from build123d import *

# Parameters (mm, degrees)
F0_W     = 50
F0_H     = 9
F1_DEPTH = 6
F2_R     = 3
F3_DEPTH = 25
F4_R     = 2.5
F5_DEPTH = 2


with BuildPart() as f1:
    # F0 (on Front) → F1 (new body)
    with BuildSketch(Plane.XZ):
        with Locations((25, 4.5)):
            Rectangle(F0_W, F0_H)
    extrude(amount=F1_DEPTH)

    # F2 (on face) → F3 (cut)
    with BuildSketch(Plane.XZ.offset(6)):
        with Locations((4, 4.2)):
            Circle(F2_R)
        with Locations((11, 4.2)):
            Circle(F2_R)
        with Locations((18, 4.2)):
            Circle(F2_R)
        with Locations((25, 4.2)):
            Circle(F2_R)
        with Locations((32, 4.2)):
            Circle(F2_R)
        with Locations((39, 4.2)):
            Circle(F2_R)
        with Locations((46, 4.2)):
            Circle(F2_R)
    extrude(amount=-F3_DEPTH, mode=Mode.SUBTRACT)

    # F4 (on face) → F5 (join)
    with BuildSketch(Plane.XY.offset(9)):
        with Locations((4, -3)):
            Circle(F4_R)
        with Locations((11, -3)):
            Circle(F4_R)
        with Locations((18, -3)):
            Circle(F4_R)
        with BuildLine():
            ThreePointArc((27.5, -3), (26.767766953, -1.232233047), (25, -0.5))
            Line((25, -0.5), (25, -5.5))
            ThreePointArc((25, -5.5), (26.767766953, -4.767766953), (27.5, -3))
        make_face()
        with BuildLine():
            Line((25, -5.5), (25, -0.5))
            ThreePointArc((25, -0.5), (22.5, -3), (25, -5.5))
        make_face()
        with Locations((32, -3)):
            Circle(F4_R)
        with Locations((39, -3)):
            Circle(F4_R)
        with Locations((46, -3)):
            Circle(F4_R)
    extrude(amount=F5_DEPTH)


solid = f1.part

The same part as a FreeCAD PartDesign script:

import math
import FreeCAD as App
import Part
import Sketcher

V = App.Vector


def add_polygon(sketch, points):
    """Adds a closed chain of lines whose ends are joined by coincident constraints."""
    first, n = sketch.GeometryCount, len(points)
    for a, b in zip(points, points[1:] + points[:1]):
        sketch.addGeometry(Part.LineSegment(App.Vector(*a, 0), App.Vector(*b, 0)), False)
    for i in range(n):
        sketch.addConstraint(Sketcher.Constraint("Coincident", first + i, 2, first + (i + 1) % n, 1))

doc = App.newDocument("Part")
body = doc.addObject("PartDesign::Body", "Body")

# Sketch on XZ plane
sketch1 = body.newObject("Sketcher::SketchObject", "Sketch")
sketch1.AttachmentSupport = (doc.getObject("XZ_Plane"), [""])
sketch1.MapMode = "FlatFace"
add_polygon(sketch1, [(0, 9), (0, 0), (50, 0), (50, 9)])  # lines 0-3
sketch1.addConstraint([
    Sketcher.Constraint("Vertical", 0),
    Sketcher.Constraint("Horizontal", 1),
    Sketcher.Constraint("Vertical", 2),
    Sketcher.Constraint("Horizontal", 3),
    Sketcher.Constraint("Coincident", 0, 2, -1, 1),
    Sketcher.Constraint("DistanceX", 1, 1, 1, 2, 50.0),
    Sketcher.Constraint("DistanceY", 0, 2, 0, 1, 9.0),
])
pad1 = body.newObject("PartDesign::Pad", "Pad")
pad1.Profile = sketch1
pad1.Length = 6

# Sketch on XZ plane
sketch2 = body.newObject("Sketcher::SketchObject", "Sketch001")
sketch2.AttachmentSupport = (doc.getObject("XZ_Plane"), [""])
sketch2.MapMode = "FlatFace"
sketch2.AttachmentOffset = App.Placement(V(0, 0, 6), App.Rotation())
sketch2.addGeometry([
    Part.Circle(V(4, 4.2, 0), V(0, 0, 1), 3),  # 0
    Part.Circle(V(11, 4.2, 0), V(0, 0, 1), 3),  # 1
    Part.Circle(V(18, 4.2, 0), V(0, 0, 1), 3),  # 2
    Part.Circle(V(25, 4.2, 0), V(0, 0, 1), 3),  # 3
    Part.Circle(V(32, 4.2, 0), V(0, 0, 1), 3),  # 4
    Part.Circle(V(39, 4.2, 0), V(0, 0, 1), 3),  # 5
    Part.Circle(V(46, 4.2, 0), V(0, 0, 1), 3),  # 6
], False)
sketch2.addConstraint([
    Sketcher.Constraint("Equal", 0, 1),
    Sketcher.Constraint("Equal", 1, 2),
    Sketcher.Constraint("Equal", 2, 3),
    Sketcher.Constraint("Equal", 3, 4),
    Sketcher.Constraint("Equal", 4, 5),
    Sketcher.Constraint("Equal", 5, 6),
    Sketcher.Constraint("Horizontal", 0, 3, 1, 3),
    Sketcher.Constraint("Horizontal", 1, 3, 2, 3),
    Sketcher.Constraint("Horizontal", 2, 3, 3, 3),
    Sketcher.Constraint("Horizontal", 3, 3, 4, 3),
    Sketcher.Constraint("Horizontal", 4, 3, 5, 3),
    Sketcher.Constraint("Horizontal", 5, 3, 6, 3),
    Sketcher.Constraint("Diameter", 0, 6.0),
    Sketcher.Constraint("DistanceX", -1, 1, 0, 3, 4.0),
    Sketcher.Constraint("DistanceX", -1, 1, 1, 3, 11.0),
    Sketcher.Constraint("DistanceX", -1, 1, 2, 3, 18.0),
    Sketcher.Constraint("DistanceX", -1, 1, 3, 3, 25.0),
    Sketcher.Constraint("DistanceX", -1, 1, 4, 3, 32.0),
    Sketcher.Constraint("DistanceX", -1, 1, 5, 3, 39.0),
    Sketcher.Constraint("DistanceX", -1, 1, 6, 3, 46.0),
    Sketcher.Constraint("DistanceY", -1, 1, 0, 3, 4.2),
])
pocket1 = body.newObject("PartDesign::Pocket", "Pocket")
pocket1.Profile = sketch2
pocket1.Length = 25

# Sketch on XY plane
sketch3 = body.newObject("Sketcher::SketchObject", "Sketch002")
sketch3.AttachmentSupport = (doc.getObject("XY_Plane"), [""])
sketch3.MapMode = "FlatFace"
sketch3.AttachmentOffset = App.Placement(V(0, 0, 9), App.Rotation())
sketch3.addGeometry([
    Part.Circle(V(4, -3, 0), V(0, 0, 1), 2.5),  # 0
    Part.Circle(V(11, -3, 0), V(0, 0, 1), 2.5),  # 1
    Part.Circle(V(18, -3, 0), V(0, 0, 1), 2.5),  # 2
    Part.ArcOfCircle(Part.Circle(V(25, -3, 0), V(0, 0, 1), 2.5), math.radians(0), math.radians(90)),  # 3
    Part.ArcOfCircle(Part.Circle(V(25, -3, 0), V(0, 0, 1), 2.5), math.radians(90), math.radians(270)),  # 4
    Part.ArcOfCircle(Part.Circle(V(25, -3, 0), V(0, 0, 1), 2.5), math.radians(-90), math.radians(0)),  # 5
    Part.Circle(V(32, -3, 0), V(0, 0, 1), 2.5),  # 6
    Part.Circle(V(39, -3, 0), V(0, 0, 1), 2.5),  # 7
    Part.Circle(V(46, -3, 0), V(0, 0, 1), 2.5),  # 8
], False)
sketch3.addConstraint([
    Sketcher.Constraint("Tangent", 3, 2, 4, 1),
    Sketcher.Constraint("Tangent", 4, 2, 5, 1),
    Sketcher.Constraint("Tangent", 5, 2, 3, 1),
    Sketcher.Constraint("Equal", 0, 1),
    Sketcher.Constraint("Equal", 1, 2),
    Sketcher.Constraint("Equal", 2, 3),
    Sketcher.Constraint("Equal", 5, 6),
    Sketcher.Constraint("Equal", 6, 7),
    Sketcher.Constraint("Equal", 7, 8),
    Sketcher.Constraint("Horizontal", 0, 3, 1, 3),
    Sketcher.Constraint("Horizontal", 1, 3, 2, 3),
    Sketcher.Constraint("Horizontal", 2, 3, 3, 3),
    Sketcher.Constraint("Horizontal", 5, 3, 6, 3),
    Sketcher.Constraint("Horizontal", 6, 3, 7, 3),
    Sketcher.Constraint("Horizontal", 7, 3, 8, 3),
    Sketcher.Constraint("Horizontal", 8, 3, 5, 2),
    Sketcher.Constraint("Vertical", 5, 3, 3, 2),
    Sketcher.Constraint("Vertical", 3, 2, 4, 2),
    Sketcher.Constraint("Diameter", 0, 5.0),
    Sketcher.Constraint("DistanceX", -1, 1, 0, 3, 4.0),
    Sketcher.Constraint("DistanceY", 0, 3, -1, 1, 3.0),
    Sketcher.Constraint("DistanceX", -1, 1, 1, 3, 11.0),
    Sketcher.Constraint("DistanceX", -1, 1, 2, 3, 18.0),
    Sketcher.Constraint("DistanceX", -1, 1, 3, 3, 25.0),
    Sketcher.Constraint("DistanceX", -1, 1, 6, 3, 32.0),
    Sketcher.Constraint("DistanceX", -1, 1, 7, 3, 39.0),
    Sketcher.Constraint("DistanceX", -1, 1, 8, 3, 46.0),
])
pad2 = body.newObject("PartDesign::Pad", "Pad001")
pad2.Profile = sketch3
pad2.Length = 2

doc.recompute()
